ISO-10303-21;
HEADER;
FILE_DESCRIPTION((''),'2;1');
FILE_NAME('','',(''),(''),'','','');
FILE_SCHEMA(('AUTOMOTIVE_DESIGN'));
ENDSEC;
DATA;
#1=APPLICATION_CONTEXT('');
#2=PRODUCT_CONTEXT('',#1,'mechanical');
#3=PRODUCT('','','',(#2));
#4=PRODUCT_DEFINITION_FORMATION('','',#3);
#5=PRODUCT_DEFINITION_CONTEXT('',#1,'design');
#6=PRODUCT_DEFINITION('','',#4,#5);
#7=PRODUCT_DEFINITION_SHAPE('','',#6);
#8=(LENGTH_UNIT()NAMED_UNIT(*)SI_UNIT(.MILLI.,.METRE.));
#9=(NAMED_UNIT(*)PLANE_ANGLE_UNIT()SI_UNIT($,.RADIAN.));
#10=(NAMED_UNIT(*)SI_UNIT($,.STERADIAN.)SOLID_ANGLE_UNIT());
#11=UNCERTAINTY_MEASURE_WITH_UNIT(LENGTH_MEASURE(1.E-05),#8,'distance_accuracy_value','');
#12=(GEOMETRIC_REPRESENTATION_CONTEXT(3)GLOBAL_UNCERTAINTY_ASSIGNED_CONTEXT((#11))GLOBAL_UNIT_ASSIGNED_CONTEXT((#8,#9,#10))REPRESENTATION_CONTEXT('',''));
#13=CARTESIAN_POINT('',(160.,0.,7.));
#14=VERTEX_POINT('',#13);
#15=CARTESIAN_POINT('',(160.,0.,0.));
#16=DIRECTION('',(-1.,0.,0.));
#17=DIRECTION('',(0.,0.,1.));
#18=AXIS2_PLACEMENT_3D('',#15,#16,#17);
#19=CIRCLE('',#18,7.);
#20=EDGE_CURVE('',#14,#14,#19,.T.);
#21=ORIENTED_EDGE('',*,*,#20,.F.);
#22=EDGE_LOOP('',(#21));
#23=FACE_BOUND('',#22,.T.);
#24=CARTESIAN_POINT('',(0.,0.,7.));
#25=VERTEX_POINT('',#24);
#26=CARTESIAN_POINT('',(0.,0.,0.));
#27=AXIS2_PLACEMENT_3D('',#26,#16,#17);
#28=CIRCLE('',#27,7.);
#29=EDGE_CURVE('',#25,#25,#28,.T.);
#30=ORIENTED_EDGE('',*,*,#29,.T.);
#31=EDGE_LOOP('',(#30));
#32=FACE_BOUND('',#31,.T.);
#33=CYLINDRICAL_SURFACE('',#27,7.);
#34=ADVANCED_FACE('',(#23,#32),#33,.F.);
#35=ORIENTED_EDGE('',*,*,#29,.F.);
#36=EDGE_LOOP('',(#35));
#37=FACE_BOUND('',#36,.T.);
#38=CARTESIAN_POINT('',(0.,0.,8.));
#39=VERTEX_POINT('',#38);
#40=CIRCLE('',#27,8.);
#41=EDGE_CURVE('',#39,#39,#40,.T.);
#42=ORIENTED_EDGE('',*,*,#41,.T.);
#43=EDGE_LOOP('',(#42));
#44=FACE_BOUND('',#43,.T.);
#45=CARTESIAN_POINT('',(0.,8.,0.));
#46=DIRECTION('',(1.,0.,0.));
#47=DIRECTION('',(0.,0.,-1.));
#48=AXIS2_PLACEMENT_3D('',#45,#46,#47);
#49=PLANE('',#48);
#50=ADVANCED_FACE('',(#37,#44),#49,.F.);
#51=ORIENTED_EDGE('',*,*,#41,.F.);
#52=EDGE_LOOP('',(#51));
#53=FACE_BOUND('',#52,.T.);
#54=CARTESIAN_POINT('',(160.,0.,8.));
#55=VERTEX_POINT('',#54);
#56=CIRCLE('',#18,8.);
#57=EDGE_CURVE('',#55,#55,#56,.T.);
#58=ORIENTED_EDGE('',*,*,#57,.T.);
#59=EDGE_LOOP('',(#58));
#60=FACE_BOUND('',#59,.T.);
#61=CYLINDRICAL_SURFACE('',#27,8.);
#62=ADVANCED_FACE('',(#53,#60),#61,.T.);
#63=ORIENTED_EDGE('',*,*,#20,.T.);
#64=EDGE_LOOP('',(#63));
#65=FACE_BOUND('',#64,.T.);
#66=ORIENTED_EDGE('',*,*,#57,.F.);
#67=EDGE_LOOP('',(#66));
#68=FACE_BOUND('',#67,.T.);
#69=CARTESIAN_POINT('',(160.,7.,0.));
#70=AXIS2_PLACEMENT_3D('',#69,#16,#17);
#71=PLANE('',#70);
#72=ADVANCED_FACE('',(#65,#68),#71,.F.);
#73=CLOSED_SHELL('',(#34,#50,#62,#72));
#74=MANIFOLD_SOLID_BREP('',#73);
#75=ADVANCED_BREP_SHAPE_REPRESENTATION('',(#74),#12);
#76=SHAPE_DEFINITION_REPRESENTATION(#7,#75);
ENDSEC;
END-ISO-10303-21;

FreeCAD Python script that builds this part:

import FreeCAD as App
import Part
import Sketcher

V = App.Vector


def add_polygon(sketch, points):
    """Adds a closed chain of lines whose ends are joined by coincident constraints."""
    first, n = sketch.GeometryCount, len(points)
    for a, b in zip(points, points[1:] + points[:1]):
        sketch.addGeometry(Part.LineSegment(App.Vector(*a, 0), App.Vector(*b, 0)), False)
    for i in range(n):
        sketch.addConstraint(Sketcher.Constraint("Coincident", first + i, 2, first + (i + 1) % n, 1))

doc = App.newDocument("Part")
body = doc.addObject("PartDesign::Body", "Body")

# Sketch on XY plane
sketch1 = body.newObject("Sketcher::SketchObject", "Sketch")
sketch1.AttachmentSupport = (doc.getObject("XY_Plane"), [""])
sketch1.MapMode = "FlatFace"
add_polygon(sketch1, [(0, 8), (0, 7), (160, 7), (160, 8)])  # lines 0-3
sketch1.addConstraint([
    Sketcher.Constraint("Vertical", 0),
    Sketcher.Constraint("Horizontal", 1),
    Sketcher.Constraint("Vertical", 2),
    Sketcher.Constraint("Horizontal", 3),
    Sketcher.Constraint("PointOnObject", 0, 2, -2),
    Sketcher.Constraint("DistanceX", 1, 1, 1, 2, 160.0),
    Sketcher.Constraint("DistanceY", 0, 2, 0, 1, 1.0),
    Sketcher.Constraint("DistanceY", -1, 1, 0, 2, 7.0),
])
revolution = body.newObject("PartDesign::Revolution", "Revolution")
revolution.Profile = sketch1
revolution.ReferenceAxis = (sketch1, ["H_Axis"])
revolution.Angle = 360

doc.recompute()
